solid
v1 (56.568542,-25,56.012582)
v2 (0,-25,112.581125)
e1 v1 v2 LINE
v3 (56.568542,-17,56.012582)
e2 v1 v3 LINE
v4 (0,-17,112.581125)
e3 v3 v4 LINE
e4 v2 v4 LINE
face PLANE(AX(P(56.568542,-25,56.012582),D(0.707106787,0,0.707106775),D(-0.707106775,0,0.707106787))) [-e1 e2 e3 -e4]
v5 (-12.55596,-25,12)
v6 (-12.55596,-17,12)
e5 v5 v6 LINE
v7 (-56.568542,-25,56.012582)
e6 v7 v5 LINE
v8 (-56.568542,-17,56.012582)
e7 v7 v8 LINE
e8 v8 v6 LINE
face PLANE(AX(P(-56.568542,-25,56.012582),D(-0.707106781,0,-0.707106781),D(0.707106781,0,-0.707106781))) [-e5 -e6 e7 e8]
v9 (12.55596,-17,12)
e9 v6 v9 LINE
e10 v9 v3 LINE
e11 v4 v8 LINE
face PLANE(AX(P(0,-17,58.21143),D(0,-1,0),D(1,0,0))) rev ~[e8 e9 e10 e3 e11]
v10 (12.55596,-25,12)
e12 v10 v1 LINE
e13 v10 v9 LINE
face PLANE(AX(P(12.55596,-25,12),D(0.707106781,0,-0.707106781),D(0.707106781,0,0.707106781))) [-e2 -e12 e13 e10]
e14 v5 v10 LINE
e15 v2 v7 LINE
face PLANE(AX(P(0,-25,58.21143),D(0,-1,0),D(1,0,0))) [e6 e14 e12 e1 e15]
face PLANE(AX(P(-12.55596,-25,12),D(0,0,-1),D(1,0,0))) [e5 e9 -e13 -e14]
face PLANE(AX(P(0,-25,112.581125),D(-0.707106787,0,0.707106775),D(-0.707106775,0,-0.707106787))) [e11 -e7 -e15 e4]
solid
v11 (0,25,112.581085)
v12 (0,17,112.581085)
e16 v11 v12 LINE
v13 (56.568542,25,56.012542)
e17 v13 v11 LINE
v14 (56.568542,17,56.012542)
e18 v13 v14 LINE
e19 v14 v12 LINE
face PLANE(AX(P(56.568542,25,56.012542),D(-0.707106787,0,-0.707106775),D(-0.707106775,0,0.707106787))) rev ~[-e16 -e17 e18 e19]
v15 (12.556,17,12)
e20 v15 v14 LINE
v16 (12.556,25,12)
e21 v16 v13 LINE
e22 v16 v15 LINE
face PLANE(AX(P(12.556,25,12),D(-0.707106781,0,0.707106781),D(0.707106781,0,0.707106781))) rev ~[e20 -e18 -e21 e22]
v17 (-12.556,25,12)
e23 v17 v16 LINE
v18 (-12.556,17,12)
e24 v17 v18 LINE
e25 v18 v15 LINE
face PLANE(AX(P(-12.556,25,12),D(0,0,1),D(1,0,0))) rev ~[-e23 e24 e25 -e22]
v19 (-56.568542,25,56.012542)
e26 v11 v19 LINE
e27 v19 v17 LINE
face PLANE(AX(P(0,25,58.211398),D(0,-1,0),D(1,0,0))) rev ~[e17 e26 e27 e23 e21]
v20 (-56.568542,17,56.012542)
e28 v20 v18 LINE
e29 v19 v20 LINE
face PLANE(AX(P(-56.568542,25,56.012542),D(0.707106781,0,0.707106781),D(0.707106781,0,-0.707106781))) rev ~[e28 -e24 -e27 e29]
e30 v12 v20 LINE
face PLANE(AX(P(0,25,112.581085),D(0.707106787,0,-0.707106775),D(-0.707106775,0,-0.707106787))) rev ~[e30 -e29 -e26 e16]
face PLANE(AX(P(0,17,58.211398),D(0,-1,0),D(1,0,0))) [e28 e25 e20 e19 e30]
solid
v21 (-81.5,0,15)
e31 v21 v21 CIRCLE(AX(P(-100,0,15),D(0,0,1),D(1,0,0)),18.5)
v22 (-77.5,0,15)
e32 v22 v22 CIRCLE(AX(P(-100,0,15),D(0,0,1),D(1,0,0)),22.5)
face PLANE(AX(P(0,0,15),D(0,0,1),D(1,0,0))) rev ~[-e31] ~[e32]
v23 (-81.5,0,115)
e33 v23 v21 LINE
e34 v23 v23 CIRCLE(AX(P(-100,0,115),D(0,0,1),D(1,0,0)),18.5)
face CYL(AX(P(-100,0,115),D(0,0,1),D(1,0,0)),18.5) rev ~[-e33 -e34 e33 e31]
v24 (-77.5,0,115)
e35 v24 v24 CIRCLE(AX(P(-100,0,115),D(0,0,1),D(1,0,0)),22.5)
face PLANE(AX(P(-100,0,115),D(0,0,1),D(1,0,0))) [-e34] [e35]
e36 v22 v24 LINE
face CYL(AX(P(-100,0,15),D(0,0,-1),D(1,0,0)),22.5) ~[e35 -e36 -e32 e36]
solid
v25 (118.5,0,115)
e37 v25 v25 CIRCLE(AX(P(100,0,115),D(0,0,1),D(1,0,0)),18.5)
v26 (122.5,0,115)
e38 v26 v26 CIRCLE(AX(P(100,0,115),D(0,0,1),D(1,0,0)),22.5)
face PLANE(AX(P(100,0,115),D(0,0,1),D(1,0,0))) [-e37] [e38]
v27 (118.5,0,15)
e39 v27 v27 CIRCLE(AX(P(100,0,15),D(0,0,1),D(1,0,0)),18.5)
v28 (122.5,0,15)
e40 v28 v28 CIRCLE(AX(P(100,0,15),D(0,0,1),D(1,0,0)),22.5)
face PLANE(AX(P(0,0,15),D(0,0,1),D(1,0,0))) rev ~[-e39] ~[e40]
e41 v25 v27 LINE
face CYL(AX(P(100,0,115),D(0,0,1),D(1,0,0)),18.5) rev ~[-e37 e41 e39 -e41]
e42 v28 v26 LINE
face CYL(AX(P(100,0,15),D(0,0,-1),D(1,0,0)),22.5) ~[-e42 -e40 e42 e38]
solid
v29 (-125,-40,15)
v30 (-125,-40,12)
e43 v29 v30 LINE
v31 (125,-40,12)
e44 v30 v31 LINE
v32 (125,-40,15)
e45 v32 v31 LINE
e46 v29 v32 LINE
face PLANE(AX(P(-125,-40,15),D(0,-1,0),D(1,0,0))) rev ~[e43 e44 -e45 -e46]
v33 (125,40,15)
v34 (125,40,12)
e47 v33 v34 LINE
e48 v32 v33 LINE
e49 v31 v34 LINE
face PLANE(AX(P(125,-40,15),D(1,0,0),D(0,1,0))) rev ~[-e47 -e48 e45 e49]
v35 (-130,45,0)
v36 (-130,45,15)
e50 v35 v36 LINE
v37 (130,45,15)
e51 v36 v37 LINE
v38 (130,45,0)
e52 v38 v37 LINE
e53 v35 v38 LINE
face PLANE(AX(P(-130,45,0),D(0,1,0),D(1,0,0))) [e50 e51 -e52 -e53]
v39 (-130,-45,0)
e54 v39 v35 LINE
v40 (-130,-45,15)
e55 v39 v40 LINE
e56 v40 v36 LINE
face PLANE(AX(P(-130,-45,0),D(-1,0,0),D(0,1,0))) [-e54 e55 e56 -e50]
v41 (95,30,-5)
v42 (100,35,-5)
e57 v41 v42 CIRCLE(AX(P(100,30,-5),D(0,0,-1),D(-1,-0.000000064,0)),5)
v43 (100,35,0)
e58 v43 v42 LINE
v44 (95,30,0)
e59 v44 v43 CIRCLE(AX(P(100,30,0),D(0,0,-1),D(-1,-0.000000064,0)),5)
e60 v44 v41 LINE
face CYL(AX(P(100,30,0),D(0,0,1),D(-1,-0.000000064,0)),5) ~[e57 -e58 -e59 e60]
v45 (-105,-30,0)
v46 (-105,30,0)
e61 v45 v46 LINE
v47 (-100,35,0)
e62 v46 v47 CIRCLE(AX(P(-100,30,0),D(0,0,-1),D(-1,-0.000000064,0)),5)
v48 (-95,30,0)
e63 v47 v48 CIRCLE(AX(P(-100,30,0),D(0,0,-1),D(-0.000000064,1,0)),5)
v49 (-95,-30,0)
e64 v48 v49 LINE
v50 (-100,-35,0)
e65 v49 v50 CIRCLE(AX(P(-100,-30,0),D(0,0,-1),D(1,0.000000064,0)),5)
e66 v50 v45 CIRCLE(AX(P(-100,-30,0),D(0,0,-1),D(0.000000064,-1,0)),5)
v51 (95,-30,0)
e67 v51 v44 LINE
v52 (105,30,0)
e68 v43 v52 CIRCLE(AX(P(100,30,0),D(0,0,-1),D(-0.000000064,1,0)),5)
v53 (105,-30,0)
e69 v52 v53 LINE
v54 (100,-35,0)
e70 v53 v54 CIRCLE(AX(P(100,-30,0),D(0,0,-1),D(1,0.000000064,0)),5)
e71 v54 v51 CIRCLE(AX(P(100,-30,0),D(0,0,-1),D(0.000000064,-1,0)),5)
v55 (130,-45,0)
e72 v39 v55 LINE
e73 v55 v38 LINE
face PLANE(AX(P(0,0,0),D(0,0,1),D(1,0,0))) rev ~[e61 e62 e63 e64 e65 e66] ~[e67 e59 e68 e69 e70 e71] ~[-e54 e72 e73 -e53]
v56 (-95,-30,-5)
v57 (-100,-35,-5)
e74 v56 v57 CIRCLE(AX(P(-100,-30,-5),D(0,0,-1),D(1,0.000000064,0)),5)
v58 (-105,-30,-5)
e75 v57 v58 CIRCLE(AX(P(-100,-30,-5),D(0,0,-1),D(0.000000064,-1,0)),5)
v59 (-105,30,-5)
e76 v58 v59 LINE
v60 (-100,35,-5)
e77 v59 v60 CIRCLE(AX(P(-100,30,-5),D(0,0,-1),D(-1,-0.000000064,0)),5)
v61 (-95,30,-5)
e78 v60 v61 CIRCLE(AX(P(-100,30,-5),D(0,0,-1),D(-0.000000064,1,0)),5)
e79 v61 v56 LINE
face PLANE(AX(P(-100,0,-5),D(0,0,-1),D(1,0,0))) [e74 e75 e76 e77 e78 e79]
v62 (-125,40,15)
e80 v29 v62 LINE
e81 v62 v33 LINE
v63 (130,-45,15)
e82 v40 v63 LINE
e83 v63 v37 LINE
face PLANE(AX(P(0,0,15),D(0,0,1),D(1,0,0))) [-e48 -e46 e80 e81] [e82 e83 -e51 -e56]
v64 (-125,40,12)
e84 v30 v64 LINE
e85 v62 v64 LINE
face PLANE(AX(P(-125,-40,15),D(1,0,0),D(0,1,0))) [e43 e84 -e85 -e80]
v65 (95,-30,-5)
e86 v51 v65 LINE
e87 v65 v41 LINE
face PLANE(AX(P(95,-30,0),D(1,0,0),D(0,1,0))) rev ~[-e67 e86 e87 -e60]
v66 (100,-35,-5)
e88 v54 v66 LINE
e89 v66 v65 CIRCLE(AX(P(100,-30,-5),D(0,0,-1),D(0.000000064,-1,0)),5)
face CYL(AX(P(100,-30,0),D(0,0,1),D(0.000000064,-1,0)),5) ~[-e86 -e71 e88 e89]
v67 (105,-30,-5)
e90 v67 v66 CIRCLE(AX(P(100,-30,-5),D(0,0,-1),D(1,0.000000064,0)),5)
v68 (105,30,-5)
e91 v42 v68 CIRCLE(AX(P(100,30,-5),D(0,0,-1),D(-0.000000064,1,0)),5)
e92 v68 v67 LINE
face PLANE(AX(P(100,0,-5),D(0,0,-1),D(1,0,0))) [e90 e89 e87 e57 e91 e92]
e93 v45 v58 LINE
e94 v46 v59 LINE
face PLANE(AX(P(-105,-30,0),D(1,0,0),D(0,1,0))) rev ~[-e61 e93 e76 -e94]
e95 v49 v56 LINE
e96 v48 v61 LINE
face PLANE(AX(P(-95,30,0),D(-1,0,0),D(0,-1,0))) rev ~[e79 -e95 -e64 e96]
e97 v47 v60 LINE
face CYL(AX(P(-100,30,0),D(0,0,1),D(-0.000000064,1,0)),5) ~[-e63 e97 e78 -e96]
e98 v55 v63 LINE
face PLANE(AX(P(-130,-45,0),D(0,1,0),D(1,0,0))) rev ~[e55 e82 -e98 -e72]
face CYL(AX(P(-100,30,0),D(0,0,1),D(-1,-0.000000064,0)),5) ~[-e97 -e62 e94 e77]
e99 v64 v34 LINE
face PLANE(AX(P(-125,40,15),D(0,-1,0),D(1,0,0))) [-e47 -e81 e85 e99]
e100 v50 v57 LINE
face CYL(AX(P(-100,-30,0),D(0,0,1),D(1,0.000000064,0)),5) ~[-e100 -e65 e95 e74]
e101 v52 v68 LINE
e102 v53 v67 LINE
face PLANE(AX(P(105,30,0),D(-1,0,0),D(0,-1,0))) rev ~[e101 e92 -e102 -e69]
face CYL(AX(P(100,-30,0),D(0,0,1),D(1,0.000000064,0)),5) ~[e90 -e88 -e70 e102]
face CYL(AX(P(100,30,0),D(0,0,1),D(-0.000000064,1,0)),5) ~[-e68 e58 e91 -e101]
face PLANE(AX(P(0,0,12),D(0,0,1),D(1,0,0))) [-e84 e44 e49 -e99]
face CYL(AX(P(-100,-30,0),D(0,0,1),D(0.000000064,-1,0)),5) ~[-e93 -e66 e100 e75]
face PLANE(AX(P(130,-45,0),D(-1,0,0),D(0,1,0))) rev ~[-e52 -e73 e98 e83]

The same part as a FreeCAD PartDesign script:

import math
import FreeCAD as App
import Part
import Sketcher
from FreeCAD import Vector

doc = App.newDocument("Part")
body = doc.addObject("PartDesign::Body", "Body")
body.AllowCompound = True

sketch1 = body.newObject("Sketcher::SketchObject", "Sketch")
sketch1.AttachmentSupport = (doc.getObject("XY_Plane"), [""])
sketch1.MapMode = "FlatFace"
sketch1.addGeometry([
    Part.LineSegment(Vector(-130, 45, 0), Vector(-130, -45, 0)),
    Part.LineSegment(Vector(-130, -45, 0), Vector(130, -45, 0)),
    Part.LineSegment(Vector(130, -45, 0), Vector(130, 45, 0)),
    Part.LineSegment(Vector(130, 45, 0), Vector(-130, 45, 0)),
], False)
sketch1.addConstraint([
    Sketcher.Constraint("Coincident", 0, 2, 1, 1),
    Sketcher.Constraint("Coincident", 1, 2, 2, 1),
    Sketcher.Constraint("Coincident", 2, 2, 3, 1),
    Sketcher.Constraint("Coincident", 3, 2, 0, 1),
    Sketcher.Constraint("Vertical", 0),
    Sketcher.Constraint("Horizontal", 1),
    Sketcher.Constraint("Vertical", 2),
    Sketcher.Constraint("Horizontal", 3),
    Sketcher.Constraint("Symmetric", 0, 2, 2, 2, -1, 1),
    Sketcher.Constraint("DistanceX", 1, 1, 1, 2, 260.0),
    Sketcher.Constraint("DistanceY", 0, 2, 0, 1, 90.0),
])
pad1 = body.newObject("PartDesign::Pad", "Pad")
pad1.Profile = sketch1
pad1.Length = 15

sketch2 = body.newObject("Sketcher::SketchObject", "Sketch001")
sketch2.AttachmentSupport = (doc.getObject("XY_Plane"), [""])
sketch2.MapMode = "FlatFace"
sketch2.AttachmentOffset = App.Placement(Vector(0, 0, 15), App.Rotation())
sketch2.addGeometry([
    Part.Circle(Vector(-100, 0, 0), Vector(0, 0, 1), 22),
    Part.Circle(Vector(100, 0, 0), Vector(0, 0, 1), 22),
], False)
sketch2.addConstraint([
    Sketcher.Constraint("Equal", 0, 1),
    Sketcher.Constraint("Symmetric", 0, 3, 1, 3, -1, 1),
    Sketcher.Constraint("PointOnObject", 0, 3, -1),
    Sketcher.Constraint("Diameter", 0, 45.0),
    Sketcher.Constraint("DistanceX", 0, 3, -1, 1, 100.0),
])
pad2 = body.newObject("PartDesign::Pad", "Pad001")
pad2.Profile = sketch2
pad2.Length = 100

sketch3 = body.newObject("Sketcher::SketchObject", "Sketch002")
sketch3.AttachmentSupport = (doc.getObject("XY_Plane"), [""])
sketch3.MapMode = "FlatFace"
sketch3.AttachmentOffset = App.Placement(Vector(0, 0, 115), App.Rotation())
sketch3.addGeometry([
    Part.Circle(Vector(-100, 0, 0), Vector(0, 0, 1), 18),
    Part.Circle(Vector(100, 0, 0), Vector(0, 0, 1), 18),
], False)
sketch3.addConstraint([
    Sketcher.Constraint("Equal", 0, 1),
    Sketcher.Constraint("Symmetric", 0, 3, 1, 3, -1, 1),
    Sketcher.Constraint("PointOnObject", 0, 3, -1),
    Sketcher.Constraint("Diameter", 0, 37.0),
    Sketcher.Constraint("DistanceX", 0, 3, -1, 1, 100.0),
])
pocket1 = body.newObject("PartDesign::Pocket", "Pocket")
pocket1.Profile = sketch3
pocket1.Length = 100

sketch4 = body.newObject("Sketcher::SketchObject", "Sketch003")
sketch4.AttachmentSupport = (doc.getObject("XY_Plane"), [""])
sketch4.MapMode = "FlatFace"
sketch4.addGeometry([
    Part.LineSegment(Vector(-95, 30, 0), Vector(-95, -30, 0)),
    Part.ArcOfCircle(Part.Circle(Vector(-100, -30, 0), Vector(0, 0, 1), 5), math.radians(-90), math.radians(0)),
    Part.ArcOfCircle(Part.Circle(Vector(-100, -30, 0), Vector(0, 0, 1), 5), math.radians(180), math.radians(270)),
    Part.LineSegment(Vector(-105, -30, 0), Vector(-105, 30, 0)),
    Part.ArcOfCircle(Part.Circle(Vector(-100, 30, 0), Vector(0, 0, 1), 5), math.radians(90), math.radians(180)),
    Part.ArcOfCircle(Part.Circle(Vector(-100, 30, 0), Vector(0, 0, 1), 5), math.radians(0), math.radians(90)),
    Part.LineSegment(Vector(105, 30, 0), Vector(105, -30, 0)),
    Part.ArcOfCircle(Part.Circle(Vector(100, -30, 0), Vector(0, 0, 1), 5), math.radians(-90), math.radians(0)),
    Part.ArcOfCircle(Part.Circle(Vector(100, -30, 0), Vector(0, 0, 1), 5), math.radians(180), math.radians(270)),
    Part.LineSegment(Vector(95, -30, 0), Vector(95, 30, 0)),
    Part.ArcOfCircle(Part.Circle(Vector(100, 30, 0), Vector(0, 0, 1), 5), math.radians(90), math.radians(180)),
    Part.ArcOfCircle(Part.Circle(Vector(100, 30, 0), Vector(0, 0, 1), 5), math.radians(0), math.radians(90)),
], False)
sketch4.addConstraint([
    Sketcher.Constraint("Tangent", 0, 2, 1, 2),
    Sketcher.Constraint("Tangent", 1, 1, 2, 2),
    Sketcher.Constraint("Tangent", 2, 1, 3, 1),
    Sketcher.Constraint("Tangent", 3, 2, 4, 2),
    Sketcher.Constraint("Tangent", 4, 1, 5, 2),
    Sketcher.Constraint("Tangent", 5, 1, 0, 1),
    Sketcher.Constraint("Tangent", 6, 2, 7, 2),
    Sketcher.Constraint("Tangent", 7, 1, 8, 2),
    Sketcher.Constraint("Tangent", 8, 1, 9, 1),
    Sketcher.Constraint("Tangent", 9, 2, 10, 2),
    Sketcher.Constraint("Tangent", 10, 1, 11, 2),
    Sketcher.Constraint("Tangent", 11, 1, 6, 1),
    Sketcher.Constraint("Vertical", 0),
    Sketcher.Constraint("Vertical", 3),
    Sketcher.Constraint("Vertical", 6),
    Sketcher.Constraint("Vertical", 9),
    Sketcher.Constraint("Equal", 1, 2),
    Sketcher.Constraint("Equal", 2, 4),
    Sketcher.Constraint("Equal", 5, 7),
    Sketcher.Constraint("Equal", 7, 8),
    Sketcher.Constraint("Equal", 8, 10),
    Sketcher.Constraint("Symmetric", 4, 3, 7, 3, -1, 1),
    Sketcher.Constraint("Symmetric", 1, 1, 10, 1, -1, 1),
    Sketcher.Constraint("Symmetric", 1, 1, 7, 1, -2),
    Sketcher.Constraint("Vertical", 5, 3, 1, 1),
    Sketcher.Constraint("Vertical", 1, 1, 4, 1),
    Sketcher.Constraint("Radius", 1, 5.0),
    Sketcher.Constraint("DistanceY", 0, 2, 0, 1, 60.0),
    Sketcher.Constraint("DistanceX", 1, 3, -1, 1, 100.0),
])
pad3 = body.newObject("PartDesign::Pad", "Pad002")
pad3.Profile = sketch4
pad3.Length = 5
pad3.Reversed = True

sketch5 = body.newObject("Sketcher::SketchObject", "Sketch004")
sketch5.AttachmentSupport = (doc.getObject("XY_Plane"), [""])
sketch5.MapMode = "FlatFace"
sketch5.AttachmentOffset = App.Placement(Vector(0, 0, 15), App.Rotation())
sketch5.addGeometry([
    Part.LineSegment(Vector(-125, 40, 0), Vector(-125, -40, 0)),
    Part.LineSegment(Vector(-125, -40, 0), Vector(125, -40, 0)),
    Part.LineSegment(Vector(125, -40, 0), Vector(125, 40, 0)),
    Part.LineSegment(Vector(125, 40, 0), Vector(-125, 40, 0)),
], False)
sketch5.addConstraint([
    Sketcher.Constraint("Coincident", 0, 2, 1, 1),
    Sketcher.Constraint("Coincident", 1, 2, 2, 1),
    Sketcher.Constraint("Coincident", 2, 2, 3, 1),
    Sketcher.Constraint("Coincident", 3, 2, 0, 1),
    Sketcher.Constraint("Vertical", 0),
    Sketcher.Constraint("Horizontal", 1),
    Sketcher.Constraint("Vertical", 2),
    Sketcher.Constraint("Horizontal", 3),
    Sketcher.Constraint("Symmetric", 0, 2, 2, 2, -1, 1),
    Sketcher.Constraint("DistanceX", 1, 1, 1, 2, 250.0),
    Sketcher.Constraint("DistanceY", 0, 2, 0, 1, 80.0),
])
pocket2 = body.newObject("PartDesign::Pocket", "Pocket001")
pocket2.Profile = sketch5
pocket2.Length = 3
body2 = doc.addObject("PartDesign::Body", "Body001")

sketch6 = body2.newObject("Sketcher::SketchObject", "Sketch005")
sketch6.AttachmentSupport = (doc.getObject("XZ_Plane001"), [""])
sketch6.MapMode = "FlatFace"
sketch6.AttachmentOffset = App.Placement(Vector(0, 0, 25), App.Rotation())
sketch6.addGeometry([
    Part.LineSegment(Vector(-57, 56, 0), Vector(-13, 12, 0)),
    Part.LineSegment(Vector(-13, 12, 0), Vector(13, 12, 0)),
    Part.LineSegment(Vector(13, 12, 0), Vector(57, 56, 0)),
    Part.LineSegment(Vector(57, 56, 0), Vector(0, 113, 0)),
    Part.LineSegment(Vector(0, 113, 0), Vector(-57, 56, 0)),
], False)
sketch6.addConstraint([
    Sketcher.Constraint("Coincident", 0, 2, 1, 1),
    Sketcher.Constraint("Coincident", 1, 2, 2, 1),
    Sketcher.Constraint("Coincident", 2, 2, 3, 1),
    Sketcher.Constraint("Coincident", 3, 2, 4, 1),
    Sketcher.Constraint("Coincident", 4, 2, 0, 1),
    Sketcher.Constraint("Horizontal", 1),
    Sketcher.Constraint("Symmetric", 2, 2, 4, 2, -2),
    Sketcher.Constraint("PointOnObject", 3, 2, -2),
    Sketcher.Constraint("Perpendicular", 0, 2),
    Sketcher.Constraint("Perpendicular", 2, 3),
    Sketcher.Constraint("Perpendicular", 3, 4),
    Sketcher.Constraint("Distance", 3, 80.0),
    Sketcher.Constraint("DistanceY", -1, 1, 0, 2, 12.0),
    Sketcher.Constraint("DistanceX", 1, 1, 1, 2, 25.11192),
])
pad4 = body2.newObject("PartDesign::Pad", "Pad003")
pad4.Profile = sketch6
pad4.Length = 8
pad4.Reversed = True
body3 = doc.addObject("PartDesign::Body", "Body002")

sketch7 = body3.newObject("Sketcher::SketchObject", "Sketch006")
sketch7.AttachmentSupport = (doc.getObject("XZ_Plane002"), [""])
sketch7.MapMode = "FlatFace"
sketch7.AttachmentOffset = App.Placement(Vector(0, 0, -25), App.Rotation())
sketch7.addGeometry([
    Part.LineSegment(Vector(-57, 56, 0), Vector(-13, 12, 0)),
    Part.LineSegment(Vector(-13, 12, 0), Vector(13, 12, 0)),
    Part.LineSegment(Vector(13, 12, 0), Vector(57, 56, 0)),
    Part.LineSegment(Vector(57, 56, 0), Vector(0, 113, 0)),
    Part.LineSegment(Vector(0, 113, 0), Vector(-57, 56, 0)),
], False)
sketch7.addConstraint([
    Sketcher.Constraint("Coincident", 0, 2, 1, 1),
    Sketcher.Constraint("Coincident", 1, 2, 2, 1),
    Sketcher.Constraint("Coincident", 2, 2, 3, 1),
    Sketcher.Constraint("Coincident", 3, 2, 4, 1),
    Sketcher.Constraint("Coincident", 4, 2, 0, 1),
    Sketcher.Constraint("Horizontal", 1),
    Sketcher.Constraint("Symmetric", 2, 2, 4, 2, -2),
    Sketcher.Constraint("PointOnObject", 3, 2, -2),
    Sketcher.Constraint("Perpendicular", 0, 2),
    Sketcher.Constraint("Perpendicular", 2, 3),
    Sketcher.Constraint("Perpendicular", 3, 4),
    Sketcher.Constraint("Distance", 3, 80.0),
    Sketcher.Constraint("DistanceY", -1, 1, 0, 2, 12.0),
    Sketcher.Constraint("DistanceX", 1, 1, 1, 2, 25.112),
])
pad5 = body3.newObject("PartDesign::Pad", "Pad004")
pad5.Profile = sketch7
pad5.Length = 8

doc.recompute()
